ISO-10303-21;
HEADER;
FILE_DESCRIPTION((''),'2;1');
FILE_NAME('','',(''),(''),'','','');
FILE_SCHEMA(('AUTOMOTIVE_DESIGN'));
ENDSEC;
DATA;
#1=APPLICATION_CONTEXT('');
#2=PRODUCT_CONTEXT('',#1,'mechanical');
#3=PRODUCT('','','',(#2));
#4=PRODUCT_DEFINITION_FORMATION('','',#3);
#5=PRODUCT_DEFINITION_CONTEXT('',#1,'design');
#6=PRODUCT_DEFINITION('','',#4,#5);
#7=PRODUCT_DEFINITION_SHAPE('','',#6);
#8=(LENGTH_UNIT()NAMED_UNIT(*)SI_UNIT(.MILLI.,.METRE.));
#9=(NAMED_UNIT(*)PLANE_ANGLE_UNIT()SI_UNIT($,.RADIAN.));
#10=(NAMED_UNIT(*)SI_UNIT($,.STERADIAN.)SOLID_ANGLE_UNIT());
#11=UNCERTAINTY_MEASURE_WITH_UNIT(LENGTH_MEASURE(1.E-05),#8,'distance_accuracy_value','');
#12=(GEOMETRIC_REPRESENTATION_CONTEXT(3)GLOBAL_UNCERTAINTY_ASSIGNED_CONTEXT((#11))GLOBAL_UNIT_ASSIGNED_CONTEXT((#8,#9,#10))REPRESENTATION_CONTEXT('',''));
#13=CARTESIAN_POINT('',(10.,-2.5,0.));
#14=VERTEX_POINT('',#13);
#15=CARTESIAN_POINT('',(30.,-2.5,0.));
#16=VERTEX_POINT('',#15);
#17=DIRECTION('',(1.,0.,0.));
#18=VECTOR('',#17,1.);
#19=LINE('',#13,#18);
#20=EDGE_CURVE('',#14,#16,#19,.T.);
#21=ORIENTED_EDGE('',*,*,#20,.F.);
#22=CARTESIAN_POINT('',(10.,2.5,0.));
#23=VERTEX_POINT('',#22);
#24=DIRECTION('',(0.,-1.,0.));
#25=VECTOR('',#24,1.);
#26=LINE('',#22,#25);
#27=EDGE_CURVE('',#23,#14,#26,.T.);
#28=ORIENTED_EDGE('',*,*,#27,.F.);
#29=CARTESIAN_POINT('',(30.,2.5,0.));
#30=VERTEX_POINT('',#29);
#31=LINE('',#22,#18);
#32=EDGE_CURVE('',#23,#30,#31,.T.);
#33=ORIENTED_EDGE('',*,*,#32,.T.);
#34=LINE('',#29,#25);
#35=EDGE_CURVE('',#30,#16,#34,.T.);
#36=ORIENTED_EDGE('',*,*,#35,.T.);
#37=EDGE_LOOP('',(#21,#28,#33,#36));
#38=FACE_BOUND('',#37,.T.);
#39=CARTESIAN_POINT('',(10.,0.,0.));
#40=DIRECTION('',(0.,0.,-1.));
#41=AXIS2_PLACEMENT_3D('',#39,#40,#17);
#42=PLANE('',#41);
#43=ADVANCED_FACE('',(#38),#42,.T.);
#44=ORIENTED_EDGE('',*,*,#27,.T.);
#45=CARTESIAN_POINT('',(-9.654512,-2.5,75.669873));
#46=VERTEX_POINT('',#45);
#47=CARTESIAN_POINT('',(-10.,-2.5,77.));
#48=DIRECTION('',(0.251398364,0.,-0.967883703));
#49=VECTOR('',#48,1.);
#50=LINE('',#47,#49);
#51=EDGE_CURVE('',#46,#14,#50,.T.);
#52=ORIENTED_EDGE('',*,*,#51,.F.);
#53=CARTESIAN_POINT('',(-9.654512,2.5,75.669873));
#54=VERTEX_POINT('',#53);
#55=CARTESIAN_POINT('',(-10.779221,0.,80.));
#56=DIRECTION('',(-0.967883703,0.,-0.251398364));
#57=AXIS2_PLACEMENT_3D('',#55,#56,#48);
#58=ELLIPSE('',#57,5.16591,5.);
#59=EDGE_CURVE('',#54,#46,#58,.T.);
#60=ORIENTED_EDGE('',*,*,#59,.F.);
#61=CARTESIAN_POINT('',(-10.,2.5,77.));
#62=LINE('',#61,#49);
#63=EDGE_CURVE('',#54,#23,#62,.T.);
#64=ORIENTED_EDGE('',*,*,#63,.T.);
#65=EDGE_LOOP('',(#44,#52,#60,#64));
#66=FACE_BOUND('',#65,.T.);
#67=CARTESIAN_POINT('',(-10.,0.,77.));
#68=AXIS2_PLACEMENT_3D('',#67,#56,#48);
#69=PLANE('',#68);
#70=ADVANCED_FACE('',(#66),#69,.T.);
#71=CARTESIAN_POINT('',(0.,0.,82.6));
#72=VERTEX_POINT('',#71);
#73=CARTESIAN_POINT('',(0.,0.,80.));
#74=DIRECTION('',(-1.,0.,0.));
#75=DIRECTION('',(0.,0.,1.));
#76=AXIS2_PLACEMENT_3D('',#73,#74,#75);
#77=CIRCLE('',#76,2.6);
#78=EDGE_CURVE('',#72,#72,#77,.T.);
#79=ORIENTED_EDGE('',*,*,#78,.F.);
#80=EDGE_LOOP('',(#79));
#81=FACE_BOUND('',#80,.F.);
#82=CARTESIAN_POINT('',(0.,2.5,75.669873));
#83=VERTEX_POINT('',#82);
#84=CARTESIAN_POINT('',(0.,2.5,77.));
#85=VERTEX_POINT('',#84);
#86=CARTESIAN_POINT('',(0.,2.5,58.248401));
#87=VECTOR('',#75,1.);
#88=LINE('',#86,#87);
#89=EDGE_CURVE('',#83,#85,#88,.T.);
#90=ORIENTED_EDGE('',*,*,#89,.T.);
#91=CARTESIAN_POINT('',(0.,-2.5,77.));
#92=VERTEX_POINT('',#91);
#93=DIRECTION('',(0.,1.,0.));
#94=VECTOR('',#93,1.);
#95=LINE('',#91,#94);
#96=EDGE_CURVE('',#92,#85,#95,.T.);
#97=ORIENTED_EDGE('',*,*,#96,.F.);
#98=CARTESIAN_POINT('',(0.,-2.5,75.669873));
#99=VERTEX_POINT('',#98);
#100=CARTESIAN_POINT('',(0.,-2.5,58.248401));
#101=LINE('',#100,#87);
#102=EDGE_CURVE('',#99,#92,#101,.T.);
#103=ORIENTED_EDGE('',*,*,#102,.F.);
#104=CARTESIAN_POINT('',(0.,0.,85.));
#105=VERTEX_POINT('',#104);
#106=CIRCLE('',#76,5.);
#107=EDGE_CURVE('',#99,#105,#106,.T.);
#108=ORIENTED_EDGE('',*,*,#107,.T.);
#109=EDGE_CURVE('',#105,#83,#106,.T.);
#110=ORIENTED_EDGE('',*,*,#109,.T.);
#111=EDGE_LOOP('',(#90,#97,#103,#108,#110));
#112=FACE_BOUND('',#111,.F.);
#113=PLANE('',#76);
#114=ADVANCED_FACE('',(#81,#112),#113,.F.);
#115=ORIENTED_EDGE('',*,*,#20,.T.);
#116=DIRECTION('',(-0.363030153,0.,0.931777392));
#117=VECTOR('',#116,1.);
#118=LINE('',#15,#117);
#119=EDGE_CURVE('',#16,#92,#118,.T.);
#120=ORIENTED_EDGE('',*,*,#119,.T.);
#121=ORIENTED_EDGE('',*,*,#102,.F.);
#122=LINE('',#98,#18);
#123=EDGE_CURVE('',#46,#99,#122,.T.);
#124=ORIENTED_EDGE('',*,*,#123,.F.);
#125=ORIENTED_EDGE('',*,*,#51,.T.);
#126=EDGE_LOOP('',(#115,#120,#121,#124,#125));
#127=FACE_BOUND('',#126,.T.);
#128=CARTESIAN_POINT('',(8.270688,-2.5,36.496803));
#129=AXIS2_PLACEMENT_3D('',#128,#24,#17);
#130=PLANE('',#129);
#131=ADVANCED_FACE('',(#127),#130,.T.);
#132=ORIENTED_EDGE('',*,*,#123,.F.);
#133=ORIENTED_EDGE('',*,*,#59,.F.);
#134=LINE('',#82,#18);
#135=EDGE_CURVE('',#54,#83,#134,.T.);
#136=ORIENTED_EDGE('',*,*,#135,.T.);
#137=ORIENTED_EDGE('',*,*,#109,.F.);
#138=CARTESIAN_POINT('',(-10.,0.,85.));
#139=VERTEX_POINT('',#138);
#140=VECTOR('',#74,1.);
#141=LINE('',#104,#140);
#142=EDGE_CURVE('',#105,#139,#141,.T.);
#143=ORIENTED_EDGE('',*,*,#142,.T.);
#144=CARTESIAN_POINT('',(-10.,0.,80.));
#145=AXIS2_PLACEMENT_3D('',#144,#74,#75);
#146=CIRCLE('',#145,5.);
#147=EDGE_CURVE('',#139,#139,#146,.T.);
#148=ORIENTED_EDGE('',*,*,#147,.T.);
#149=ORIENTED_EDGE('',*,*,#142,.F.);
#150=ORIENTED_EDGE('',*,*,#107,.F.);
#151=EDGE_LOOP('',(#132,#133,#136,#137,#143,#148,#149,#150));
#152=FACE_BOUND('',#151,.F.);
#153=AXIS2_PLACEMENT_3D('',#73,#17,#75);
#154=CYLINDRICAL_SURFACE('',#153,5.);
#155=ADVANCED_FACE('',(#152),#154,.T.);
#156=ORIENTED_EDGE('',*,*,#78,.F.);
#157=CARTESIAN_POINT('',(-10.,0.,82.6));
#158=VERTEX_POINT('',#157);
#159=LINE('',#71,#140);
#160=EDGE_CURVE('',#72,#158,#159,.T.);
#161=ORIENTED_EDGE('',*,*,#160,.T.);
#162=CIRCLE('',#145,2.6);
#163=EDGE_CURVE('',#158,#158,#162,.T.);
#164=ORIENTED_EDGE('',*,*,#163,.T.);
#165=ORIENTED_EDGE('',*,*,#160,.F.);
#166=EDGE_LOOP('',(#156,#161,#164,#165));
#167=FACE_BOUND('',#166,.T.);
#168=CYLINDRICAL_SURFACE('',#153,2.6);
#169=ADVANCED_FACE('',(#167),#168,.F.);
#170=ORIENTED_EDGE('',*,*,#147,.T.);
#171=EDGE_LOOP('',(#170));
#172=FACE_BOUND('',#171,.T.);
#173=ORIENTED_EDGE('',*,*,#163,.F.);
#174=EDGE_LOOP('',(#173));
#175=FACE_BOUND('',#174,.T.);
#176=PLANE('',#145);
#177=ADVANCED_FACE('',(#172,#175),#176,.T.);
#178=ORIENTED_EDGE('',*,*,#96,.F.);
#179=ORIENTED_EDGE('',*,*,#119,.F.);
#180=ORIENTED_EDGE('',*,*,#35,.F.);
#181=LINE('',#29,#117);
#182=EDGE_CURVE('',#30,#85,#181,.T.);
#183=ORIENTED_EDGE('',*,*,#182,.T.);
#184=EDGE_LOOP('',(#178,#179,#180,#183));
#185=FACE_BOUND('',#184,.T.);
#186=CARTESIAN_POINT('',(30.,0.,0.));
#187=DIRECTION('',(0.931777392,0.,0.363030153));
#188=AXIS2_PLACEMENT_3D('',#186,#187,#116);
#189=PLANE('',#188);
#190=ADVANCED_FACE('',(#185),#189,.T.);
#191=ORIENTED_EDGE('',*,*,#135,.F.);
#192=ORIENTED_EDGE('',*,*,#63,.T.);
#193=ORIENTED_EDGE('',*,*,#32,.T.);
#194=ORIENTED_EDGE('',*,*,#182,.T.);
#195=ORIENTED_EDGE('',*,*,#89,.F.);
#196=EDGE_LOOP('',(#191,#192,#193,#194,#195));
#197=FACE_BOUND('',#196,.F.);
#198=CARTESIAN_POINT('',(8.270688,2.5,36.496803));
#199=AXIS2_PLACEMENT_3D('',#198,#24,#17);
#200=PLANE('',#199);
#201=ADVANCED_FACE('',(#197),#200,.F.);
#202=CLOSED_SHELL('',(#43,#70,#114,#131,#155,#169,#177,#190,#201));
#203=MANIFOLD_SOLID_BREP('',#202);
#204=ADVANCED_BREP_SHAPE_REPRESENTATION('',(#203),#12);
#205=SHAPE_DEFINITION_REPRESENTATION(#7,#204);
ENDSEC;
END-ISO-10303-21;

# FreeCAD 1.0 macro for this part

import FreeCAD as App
import Part
import Sketcher
from FreeCAD import Vector


def add_polygon(sketch, points):
    """Adds a closed chain of lines whose ends are joined by coincident constraints."""
    first, n = sketch.GeometryCount, len(points)
    for a, b in zip(points, points[1:] + points[:1]):
        sketch.addGeometry(Part.LineSegment(App.Vector(*a, 0), App.Vector(*b, 0)), False)
    for i in range(n):
        sketch.addConstraint(Sketcher.Constraint("Coincident", first + i, 2, first + (i + 1) % n, 1))

doc = App.newDocument("Part")
params = doc.addObject("Spreadsheet::Sheet", "Params")
for row, (alias, value) in enumerate([
    ("sketch1_width", "20 mm"),
    ("sketch1_width2", "10 mm"),
    ("pad1_length", "5 mm"),
    ("sketch2_diameter", "10 mm"),
    ("sketch2_diameter2", "5.2 mm"),
    ("pad2_length", "10 mm"),
], start=1):
    params.set(f"A{row}", alias)
    params.set(f"B{row}", "=" + value)
    params.setAlias(f"B{row}", alias)

body = doc.addObject("PartDesign::Body", "Body")

sketch1 = doc.addObject("Sketcher::SketchObject", "Sketch")
body.addObject(sketch1)
sketch1.AttachmentSupport = (doc.XZ_Plane, [""])
sketch1.MapMode = "FlatFace"
add_polygon(sketch1, [(-10, 77), (10, 0), (30, 0), (0, 77)])
sketch1.addConstraint([
    Sketcher.Constraint("Horizontal", 1),
    Sketcher.Constraint("Horizontal", 3),
    Sketcher.Constraint("PointOnObject", 0, 2, -1),
    Sketcher.Constraint("PointOnObject", 2, 2, -2),
    Sketcher.Constraint("DistanceX", 1, 1, 1, 2, 20.0),
    Sketcher.Constraint("DistanceX", 3, 2, 3, 1, 10.0),
    Sketcher.Constraint("DistanceX", -1, 1, 0, 2, 10.0),
    Sketcher.Constraint("DistanceY", -1, 1, 2, 2, 77.0),
])
sketch1.setExpression("Constraints[8]", "Params.sketch1_width")
sketch1.setExpression("Constraints[9]", "Params.sketch1_width2")
pad1 = doc.addObject("PartDesign::Pad", "Pad")
body.addObject(pad1)
pad1.Profile = sketch1
pad1.setExpression("Length", "Params.pad1_length")
pad1.Midplane = True
body2 = doc.addObject("PartDesign::Body", "Body001")

sketch2 = doc.addObject("Sketcher::SketchObject", "Sketch001")
body2.addObject(sketch2)
sketch2.AttachmentSupport = (doc.getObject("YZ_Plane001"), [""])
sketch2.MapMode = "FlatFace"
sketch2.addGeometry([
    Part.Circle(Vector(0, 80, 0), Vector(0, 0, 1), 5),
    Part.Circle(Vector(0, 80, 0), Vector(0, 0, 1), 2.6),
], False)
sketch2.addConstraint([
    Sketcher.Constraint("Coincident", 1, 3, 0, 3),
    Sketcher.Constraint("PointOnObject", 0, 3, -2),
    Sketcher.Constraint("Diameter", 0, 10.0),
    Sketcher.Constraint("Diameter", 1, 5.2),
    Sketcher.Constraint("DistanceY", -1, 1, 0, 3, 80.0),
])
sketch2.setExpression("Constraints[2]", "Params.sketch2_diameter")
sketch2.setExpression("Constraints[3]", "Params.sketch2_diameter2")
pad2 = doc.addObject("PartDesign::Pad", "Pad001")
body2.addObject(pad2)
pad2.Profile = sketch2
pad2.setExpression("Length", "Params.pad2_length")
pad2.Reversed = True
doc.recompute()

boolean = doc.addObject("PartDesign::Boolean", "Boolean")
body2.addObject(boolean)
boolean.Type = "Fuse"
boolean.addObjects([body])

doc.recompute()
